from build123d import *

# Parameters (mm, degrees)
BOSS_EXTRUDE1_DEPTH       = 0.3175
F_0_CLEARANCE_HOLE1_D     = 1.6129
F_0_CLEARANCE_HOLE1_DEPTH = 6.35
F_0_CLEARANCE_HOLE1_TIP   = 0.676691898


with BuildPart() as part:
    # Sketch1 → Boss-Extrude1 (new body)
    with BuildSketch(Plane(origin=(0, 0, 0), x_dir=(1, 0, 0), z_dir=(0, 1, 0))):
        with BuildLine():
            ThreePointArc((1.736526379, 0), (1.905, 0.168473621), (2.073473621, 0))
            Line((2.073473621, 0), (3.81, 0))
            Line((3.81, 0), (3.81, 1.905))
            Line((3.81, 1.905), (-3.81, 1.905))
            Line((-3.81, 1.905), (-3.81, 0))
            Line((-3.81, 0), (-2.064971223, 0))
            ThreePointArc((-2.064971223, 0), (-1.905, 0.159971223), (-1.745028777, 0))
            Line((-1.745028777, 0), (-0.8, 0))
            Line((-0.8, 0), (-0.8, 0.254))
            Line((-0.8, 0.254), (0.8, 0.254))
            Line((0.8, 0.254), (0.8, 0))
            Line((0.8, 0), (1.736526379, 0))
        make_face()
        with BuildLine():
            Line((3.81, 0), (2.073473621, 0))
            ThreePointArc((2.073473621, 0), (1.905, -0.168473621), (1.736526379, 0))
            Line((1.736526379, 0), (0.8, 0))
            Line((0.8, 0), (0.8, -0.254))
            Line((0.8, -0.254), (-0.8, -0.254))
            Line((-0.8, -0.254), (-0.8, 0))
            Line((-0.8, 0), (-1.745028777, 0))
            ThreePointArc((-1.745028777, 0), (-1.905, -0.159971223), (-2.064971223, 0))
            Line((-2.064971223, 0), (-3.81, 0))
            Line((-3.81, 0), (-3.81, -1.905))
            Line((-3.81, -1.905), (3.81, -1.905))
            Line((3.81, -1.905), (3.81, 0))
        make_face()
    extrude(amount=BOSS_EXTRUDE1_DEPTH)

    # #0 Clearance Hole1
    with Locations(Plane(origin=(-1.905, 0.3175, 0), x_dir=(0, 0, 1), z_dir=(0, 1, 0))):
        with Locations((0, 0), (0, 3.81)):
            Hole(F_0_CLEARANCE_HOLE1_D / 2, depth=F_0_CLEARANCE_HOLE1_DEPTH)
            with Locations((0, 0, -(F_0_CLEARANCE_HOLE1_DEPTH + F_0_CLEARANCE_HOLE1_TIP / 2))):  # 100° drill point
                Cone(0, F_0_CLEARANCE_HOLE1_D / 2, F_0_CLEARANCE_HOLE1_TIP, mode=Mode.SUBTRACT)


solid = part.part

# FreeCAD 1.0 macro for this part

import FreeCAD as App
import Part
import Sketcher
Q = App.Units.Quantity


def add_polygon(sketch, points):
    """Adds a closed chain of lines whose ends are joined by coincident constraints."""
    first, n = sketch.GeometryCount, len(points)
    for a, b in zip(points, points[1:] + points[:1]):
        sketch.addGeometry(Part.LineSegment(App.Vector(*a, 0), App.Vector(*b, 0)), False)
    for i in range(n):
        sketch.addConstraint(Sketcher.Constraint("Coincident", first + i, 2, first + (i + 1) % n, 1))

doc = App.newDocument("Part")
body = doc.addObject("PartDesign::Body", "Body")

sketch1 = doc.addObject("Sketcher::SketchObject", "Sketch")
body.addObject(sketch1)
sketch1.AttachmentSupport = (doc.XZ_Plane, [""])
sketch1.MapMode = "FlatFace"
add_polygon(sketch1, [(3.81, -1.905), (-3.81, -1.905), (-3.81, 1.905), (3.81, 1.905)])
sketch1.addGeometry(Part.Circle(App.Vector(1.905, 0, 0), App.Vector(0, 0, 1), 0.168474), False)
sketch1.addGeometry(Part.Circle(App.Vector(-1.905, 0, 0), App.Vector(0, 0, 1), 0.159971), False)
add_polygon(sketch1, [(-0.8, -0.254), (0.8, -0.254), (0.8, 0.254), (-0.8, 0.254)])
sketch1.addConstraint([
    Sketcher.Constraint("Horizontal", 0),
    Sketcher.Constraint("Vertical", 1),
    Sketcher.Constraint("Horizontal", 2),
    Sketcher.Constraint("Vertical", 3),
    Sketcher.Constraint("Horizontal", 6),
    Sketcher.Constraint("Vertical", 7),
    Sketcher.Constraint("Horizontal", 8),
    Sketcher.Constraint("Vertical", 9),
    Sketcher.Constraint("Symmetric", 4, 3, 5, 3, -1, 1),
    Sketcher.Constraint("Symmetric", 0, 2, 2, 2, -1, 1),
    Sketcher.Constraint("Symmetric", 6, 2, 8, 2, -1, 1),
    Sketcher.Constraint("PointOnObject", 4, 3, -1),
    Sketcher.Constraint("DistanceX", 0, 2, 0, 1, Q("0.3 in")),
    Sketcher.Constraint("DistanceY", 1, 1, 1, 2, Q("0.15 in")),
    Sketcher.Constraint("DistanceY", 7, 1, 7, 2, Q("0.02 in")),
    Sketcher.Constraint("DistanceX", 5, 3, 4, 3, Q("0.15 in")),
    Sketcher.Constraint("Diameter", 4, Q("0.336947 mm")),
    Sketcher.Constraint("Diameter", 5, Q("0.319942 mm")),
    Sketcher.Constraint("DistanceX", 6, 1, 6, 2, Q("1.6 mm")),
])
pad1 = doc.addObject("PartDesign::Pad", "Pad")
body.addObject(pad1)
pad1.Profile = sketch1
pad1.Length = Q("0.0125 in")
pad1.Reversed = True

sketch2 = doc.addObject("Sketcher::SketchObject", "Sketch001")
body.addObject(sketch2)
sketch2.AttachmentSupport = (doc.XZ_Plane, [""])
sketch2.MapMode = "FlatFace"
sketch2.AttachmentOffset = App.Placement(App.Vector(0, 0, -0.0125 * 25.4), App.Rotation())
sketch2.addGeometry([
    Part.Circle(App.Vector(-1.905, 0, 0), App.Vector(0, 0, 1), 0.80645),
    Part.Circle(App.Vector(1.905, 0, 0), App.Vector(0, 0, 1), 0.80645),
], False)
sketch2.addConstraint([
    Sketcher.Constraint("Equal", 0, 1),
    Sketcher.Constraint("Symmetric", 0, 3, 1, 3, -1, 1),
    Sketcher.Constraint("PointOnObject", 0, 3, -1),
    Sketcher.Constraint("Diameter", 0, Q("0.0635 in")),
    Sketcher.Constraint("DistanceX", 0, 3, 1, 3, Q("0.15 in")),
])
doc.recompute()
hole = doc.addObject("PartDesign::Hole", "Hole")
body.addObject(hole)
hole.Profile = sketch2
hole.ThreadType = "None"
hole.Diameter = Q("0.0635 in")
hole.DepthType = "Dimension"
hole.Depth = Q("0.25 in")
hole.DrillPoint = "Angled"
hole.DrillPointAngle = 100
hole.Reversed = True

doc.recompute()
